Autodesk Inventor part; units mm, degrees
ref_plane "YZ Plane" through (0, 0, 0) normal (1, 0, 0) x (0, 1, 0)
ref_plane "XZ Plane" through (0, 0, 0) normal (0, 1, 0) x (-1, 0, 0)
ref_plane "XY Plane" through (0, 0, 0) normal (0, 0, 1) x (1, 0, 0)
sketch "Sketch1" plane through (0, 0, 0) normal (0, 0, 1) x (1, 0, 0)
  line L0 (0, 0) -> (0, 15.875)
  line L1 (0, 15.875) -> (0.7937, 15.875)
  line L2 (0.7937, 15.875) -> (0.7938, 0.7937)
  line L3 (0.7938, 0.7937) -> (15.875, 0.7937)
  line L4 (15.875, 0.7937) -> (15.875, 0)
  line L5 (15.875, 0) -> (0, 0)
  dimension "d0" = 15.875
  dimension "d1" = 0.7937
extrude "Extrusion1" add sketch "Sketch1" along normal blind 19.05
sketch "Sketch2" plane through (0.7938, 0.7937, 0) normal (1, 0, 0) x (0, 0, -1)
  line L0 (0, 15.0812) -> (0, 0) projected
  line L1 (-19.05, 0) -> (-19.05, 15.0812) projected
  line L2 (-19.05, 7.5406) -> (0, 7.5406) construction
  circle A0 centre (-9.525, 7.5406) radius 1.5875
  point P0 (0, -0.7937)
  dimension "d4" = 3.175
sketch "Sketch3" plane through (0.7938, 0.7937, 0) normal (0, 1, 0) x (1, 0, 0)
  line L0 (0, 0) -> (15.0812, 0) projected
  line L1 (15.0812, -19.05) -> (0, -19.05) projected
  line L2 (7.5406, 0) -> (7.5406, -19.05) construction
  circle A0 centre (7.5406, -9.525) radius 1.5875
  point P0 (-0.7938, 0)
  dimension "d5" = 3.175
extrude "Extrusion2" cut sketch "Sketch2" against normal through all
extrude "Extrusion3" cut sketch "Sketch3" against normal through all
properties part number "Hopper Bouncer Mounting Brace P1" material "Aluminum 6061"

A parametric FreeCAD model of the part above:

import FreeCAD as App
import Part
import Sketcher
from FreeCAD import Vector
Q = App.Units.Quantity

doc = App.newDocument("Part")
params = doc.addObject("Spreadsheet::Sheet", "Params")
for row, (alias, value) in enumerate([
    ("sketch1_width", "0.625 in"),
    ("sketch1_width2", "0.031248 in"),
    ("pad1_length", "0.75 in"),
    ("sketch2_diameter", "0.125 in"),
    ("sketch3_diameter", "0.125 in"),
], start=1):
    params.set(f"A{row}", alias)
    params.set(f"B{row}", "=" + value)
    params.setAlias(f"B{row}", alias)

body = doc.addObject("PartDesign::Body", "Body")

# Sketch on XY plane
sketch1 = doc.addObject("Sketcher::SketchObject", "Sketch")
body.addObject(sketch1)
sketch1.AttachmentSupport = (doc.XY_Plane, [""])
sketch1.MapMode = "FlatFace"
sketch1.addGeometry(Part.LineSegment(Vector(0, 15.9, 0), Vector(0, 0, 0)), False)
sketch1.addGeometry(Part.LineSegment(Vector(0, 0, 0), Vector(15.9, 0, 0)), False)
sketch1.addGeometry(Part.LineSegment(Vector(15.9, 0, 0), Vector(15.9, 0.8, 0)), False)
sketch1.addGeometry(Part.LineSegment(Vector(15.9, 0.8, 0), Vector(0.8, 0.8, 0)), False)
sketch1.addGeometry(Part.LineSegment(Vector(0.8, 0.8, 0), Vector(0.8, 15.9, 0)), False)
sketch1.addGeometry(Part.LineSegment(Vector(0.8, 15.9, 0), Vector(0, 15.9, 0)), False)
sketch1.addConstraint(Sketcher.Constraint("Coincident", 0, 2, 1, 1))
sketch1.addConstraint(Sketcher.Constraint("Coincident", 1, 2, 2, 1))
sketch1.addConstraint(Sketcher.Constraint("Coincident", 2, 2, 3, 1))
sketch1.addConstraint(Sketcher.Constraint("Coincident", 3, 2, 4, 1))
sketch1.addConstraint(Sketcher.Constraint("Coincident", 4, 2, 5, 1))
sketch1.addConstraint(Sketcher.Constraint("Coincident", 5, 2, 0, 1))
sketch1.addConstraint(Sketcher.Constraint("Vertical", 0))
sketch1.addConstraint(Sketcher.Constraint("Horizontal", 1))
sketch1.addConstraint(Sketcher.Constraint("Vertical", 2))
sketch1.addConstraint(Sketcher.Constraint("Horizontal", 3))
sketch1.addConstraint(Sketcher.Constraint("Vertical", 4))
sketch1.addConstraint(Sketcher.Constraint("Horizontal", 5))
sketch1.addConstraint(Sketcher.Constraint("Coincident", 0, 2, -1, 1))
sketch1.addConstraint(Sketcher.Constraint("Equal", 1, 0))
sketch1.addConstraint(Sketcher.Constraint("Equal", 5, 2))
sketch1.addConstraint(Sketcher.Constraint("DistanceX", 1, 1, 1, 2, Q("0.625 in")))
sketch1.addConstraint(Sketcher.Constraint("DistanceX", 5, 2, 5, 1, Q("0.031248 in")))
sketch1.setExpression("Constraints[15]", "Params.sketch1_width")
sketch1.setExpression("Constraints[16]", "Params.sketch1_width2")
pad1 = doc.addObject("PartDesign::Pad", "Pad")
body.addObject(pad1)
pad1.Profile = sketch1
pad1.setExpression("Length", "Params.pad1_length")

# Sketch on YZ plane
sketch2 = doc.addObject("Sketcher::SketchObject", "Sketch001")
body.addObject(sketch2)
sketch2.AttachmentSupport = (doc.YZ_Plane, [""])
sketch2.MapMode = "FlatFace"
sketch2.AttachmentOffset = App.Placement(Vector(0, 0, 0.031252 * 25.4), App.Rotation())
sketch2.addGeometry(Part.Circle(Vector(8.3, 9.5, 0), Vector(0, 0, 1), 1.6), False)
sketch2.addConstraint(Sketcher.Constraint("Diameter", 0, Q("0.125 in")))
sketch2.addConstraint(Sketcher.Constraint("DistanceX", -1, 1, 0, 3, Q("0.328122 in")))
sketch2.addConstraint(Sketcher.Constraint("DistanceY", -1, 1, 0, 3, Q("0.375 in")))
sketch2.setExpression("Constraints[0]", "Params.sketch2_diameter")
pocket1 = doc.addObject("PartDesign::Pocket", "Pocket")
body.addObject(pocket1)
pocket1.Profile = sketch2
pocket1.Type = "ThroughAll"

# Sketch on XZ plane
sketch3 = doc.addObject("Sketcher::SketchObject", "Sketch002")
body.addObject(sketch3)
sketch3.AttachmentSupport = (doc.XZ_Plane, [""])
sketch3.MapMode = "FlatFace"
sketch3.AttachmentOffset = App.Placement(Vector(0, 0, -0.031248 * 25.4), App.Rotation())
sketch3.addGeometry(Part.Circle(Vector(8.3, 9.5, 0), Vector(0, 0, 1), 1.6), False)
sketch3.addConstraint(Sketcher.Constraint("Diameter", 0, Q("0.125 in")))
sketch3.addConstraint(Sketcher.Constraint("DistanceX", -1, 1, 0, 3, Q("0.328126 in")))
sketch3.addConstraint(Sketcher.Constraint("DistanceY", -1, 1, 0, 3, Q("0.375 in")))
sketch3.setExpression("Constraints[0]", "Params.sketch3_diameter")
pocket2 = doc.addObject("PartDesign::Pocket", "Pocket001")
body.addObject(pocket2)
pocket2.Profile = sketch3
pocket2.Type = "ThroughAll"
pocket2.Reversed = True

doc.recompute()
